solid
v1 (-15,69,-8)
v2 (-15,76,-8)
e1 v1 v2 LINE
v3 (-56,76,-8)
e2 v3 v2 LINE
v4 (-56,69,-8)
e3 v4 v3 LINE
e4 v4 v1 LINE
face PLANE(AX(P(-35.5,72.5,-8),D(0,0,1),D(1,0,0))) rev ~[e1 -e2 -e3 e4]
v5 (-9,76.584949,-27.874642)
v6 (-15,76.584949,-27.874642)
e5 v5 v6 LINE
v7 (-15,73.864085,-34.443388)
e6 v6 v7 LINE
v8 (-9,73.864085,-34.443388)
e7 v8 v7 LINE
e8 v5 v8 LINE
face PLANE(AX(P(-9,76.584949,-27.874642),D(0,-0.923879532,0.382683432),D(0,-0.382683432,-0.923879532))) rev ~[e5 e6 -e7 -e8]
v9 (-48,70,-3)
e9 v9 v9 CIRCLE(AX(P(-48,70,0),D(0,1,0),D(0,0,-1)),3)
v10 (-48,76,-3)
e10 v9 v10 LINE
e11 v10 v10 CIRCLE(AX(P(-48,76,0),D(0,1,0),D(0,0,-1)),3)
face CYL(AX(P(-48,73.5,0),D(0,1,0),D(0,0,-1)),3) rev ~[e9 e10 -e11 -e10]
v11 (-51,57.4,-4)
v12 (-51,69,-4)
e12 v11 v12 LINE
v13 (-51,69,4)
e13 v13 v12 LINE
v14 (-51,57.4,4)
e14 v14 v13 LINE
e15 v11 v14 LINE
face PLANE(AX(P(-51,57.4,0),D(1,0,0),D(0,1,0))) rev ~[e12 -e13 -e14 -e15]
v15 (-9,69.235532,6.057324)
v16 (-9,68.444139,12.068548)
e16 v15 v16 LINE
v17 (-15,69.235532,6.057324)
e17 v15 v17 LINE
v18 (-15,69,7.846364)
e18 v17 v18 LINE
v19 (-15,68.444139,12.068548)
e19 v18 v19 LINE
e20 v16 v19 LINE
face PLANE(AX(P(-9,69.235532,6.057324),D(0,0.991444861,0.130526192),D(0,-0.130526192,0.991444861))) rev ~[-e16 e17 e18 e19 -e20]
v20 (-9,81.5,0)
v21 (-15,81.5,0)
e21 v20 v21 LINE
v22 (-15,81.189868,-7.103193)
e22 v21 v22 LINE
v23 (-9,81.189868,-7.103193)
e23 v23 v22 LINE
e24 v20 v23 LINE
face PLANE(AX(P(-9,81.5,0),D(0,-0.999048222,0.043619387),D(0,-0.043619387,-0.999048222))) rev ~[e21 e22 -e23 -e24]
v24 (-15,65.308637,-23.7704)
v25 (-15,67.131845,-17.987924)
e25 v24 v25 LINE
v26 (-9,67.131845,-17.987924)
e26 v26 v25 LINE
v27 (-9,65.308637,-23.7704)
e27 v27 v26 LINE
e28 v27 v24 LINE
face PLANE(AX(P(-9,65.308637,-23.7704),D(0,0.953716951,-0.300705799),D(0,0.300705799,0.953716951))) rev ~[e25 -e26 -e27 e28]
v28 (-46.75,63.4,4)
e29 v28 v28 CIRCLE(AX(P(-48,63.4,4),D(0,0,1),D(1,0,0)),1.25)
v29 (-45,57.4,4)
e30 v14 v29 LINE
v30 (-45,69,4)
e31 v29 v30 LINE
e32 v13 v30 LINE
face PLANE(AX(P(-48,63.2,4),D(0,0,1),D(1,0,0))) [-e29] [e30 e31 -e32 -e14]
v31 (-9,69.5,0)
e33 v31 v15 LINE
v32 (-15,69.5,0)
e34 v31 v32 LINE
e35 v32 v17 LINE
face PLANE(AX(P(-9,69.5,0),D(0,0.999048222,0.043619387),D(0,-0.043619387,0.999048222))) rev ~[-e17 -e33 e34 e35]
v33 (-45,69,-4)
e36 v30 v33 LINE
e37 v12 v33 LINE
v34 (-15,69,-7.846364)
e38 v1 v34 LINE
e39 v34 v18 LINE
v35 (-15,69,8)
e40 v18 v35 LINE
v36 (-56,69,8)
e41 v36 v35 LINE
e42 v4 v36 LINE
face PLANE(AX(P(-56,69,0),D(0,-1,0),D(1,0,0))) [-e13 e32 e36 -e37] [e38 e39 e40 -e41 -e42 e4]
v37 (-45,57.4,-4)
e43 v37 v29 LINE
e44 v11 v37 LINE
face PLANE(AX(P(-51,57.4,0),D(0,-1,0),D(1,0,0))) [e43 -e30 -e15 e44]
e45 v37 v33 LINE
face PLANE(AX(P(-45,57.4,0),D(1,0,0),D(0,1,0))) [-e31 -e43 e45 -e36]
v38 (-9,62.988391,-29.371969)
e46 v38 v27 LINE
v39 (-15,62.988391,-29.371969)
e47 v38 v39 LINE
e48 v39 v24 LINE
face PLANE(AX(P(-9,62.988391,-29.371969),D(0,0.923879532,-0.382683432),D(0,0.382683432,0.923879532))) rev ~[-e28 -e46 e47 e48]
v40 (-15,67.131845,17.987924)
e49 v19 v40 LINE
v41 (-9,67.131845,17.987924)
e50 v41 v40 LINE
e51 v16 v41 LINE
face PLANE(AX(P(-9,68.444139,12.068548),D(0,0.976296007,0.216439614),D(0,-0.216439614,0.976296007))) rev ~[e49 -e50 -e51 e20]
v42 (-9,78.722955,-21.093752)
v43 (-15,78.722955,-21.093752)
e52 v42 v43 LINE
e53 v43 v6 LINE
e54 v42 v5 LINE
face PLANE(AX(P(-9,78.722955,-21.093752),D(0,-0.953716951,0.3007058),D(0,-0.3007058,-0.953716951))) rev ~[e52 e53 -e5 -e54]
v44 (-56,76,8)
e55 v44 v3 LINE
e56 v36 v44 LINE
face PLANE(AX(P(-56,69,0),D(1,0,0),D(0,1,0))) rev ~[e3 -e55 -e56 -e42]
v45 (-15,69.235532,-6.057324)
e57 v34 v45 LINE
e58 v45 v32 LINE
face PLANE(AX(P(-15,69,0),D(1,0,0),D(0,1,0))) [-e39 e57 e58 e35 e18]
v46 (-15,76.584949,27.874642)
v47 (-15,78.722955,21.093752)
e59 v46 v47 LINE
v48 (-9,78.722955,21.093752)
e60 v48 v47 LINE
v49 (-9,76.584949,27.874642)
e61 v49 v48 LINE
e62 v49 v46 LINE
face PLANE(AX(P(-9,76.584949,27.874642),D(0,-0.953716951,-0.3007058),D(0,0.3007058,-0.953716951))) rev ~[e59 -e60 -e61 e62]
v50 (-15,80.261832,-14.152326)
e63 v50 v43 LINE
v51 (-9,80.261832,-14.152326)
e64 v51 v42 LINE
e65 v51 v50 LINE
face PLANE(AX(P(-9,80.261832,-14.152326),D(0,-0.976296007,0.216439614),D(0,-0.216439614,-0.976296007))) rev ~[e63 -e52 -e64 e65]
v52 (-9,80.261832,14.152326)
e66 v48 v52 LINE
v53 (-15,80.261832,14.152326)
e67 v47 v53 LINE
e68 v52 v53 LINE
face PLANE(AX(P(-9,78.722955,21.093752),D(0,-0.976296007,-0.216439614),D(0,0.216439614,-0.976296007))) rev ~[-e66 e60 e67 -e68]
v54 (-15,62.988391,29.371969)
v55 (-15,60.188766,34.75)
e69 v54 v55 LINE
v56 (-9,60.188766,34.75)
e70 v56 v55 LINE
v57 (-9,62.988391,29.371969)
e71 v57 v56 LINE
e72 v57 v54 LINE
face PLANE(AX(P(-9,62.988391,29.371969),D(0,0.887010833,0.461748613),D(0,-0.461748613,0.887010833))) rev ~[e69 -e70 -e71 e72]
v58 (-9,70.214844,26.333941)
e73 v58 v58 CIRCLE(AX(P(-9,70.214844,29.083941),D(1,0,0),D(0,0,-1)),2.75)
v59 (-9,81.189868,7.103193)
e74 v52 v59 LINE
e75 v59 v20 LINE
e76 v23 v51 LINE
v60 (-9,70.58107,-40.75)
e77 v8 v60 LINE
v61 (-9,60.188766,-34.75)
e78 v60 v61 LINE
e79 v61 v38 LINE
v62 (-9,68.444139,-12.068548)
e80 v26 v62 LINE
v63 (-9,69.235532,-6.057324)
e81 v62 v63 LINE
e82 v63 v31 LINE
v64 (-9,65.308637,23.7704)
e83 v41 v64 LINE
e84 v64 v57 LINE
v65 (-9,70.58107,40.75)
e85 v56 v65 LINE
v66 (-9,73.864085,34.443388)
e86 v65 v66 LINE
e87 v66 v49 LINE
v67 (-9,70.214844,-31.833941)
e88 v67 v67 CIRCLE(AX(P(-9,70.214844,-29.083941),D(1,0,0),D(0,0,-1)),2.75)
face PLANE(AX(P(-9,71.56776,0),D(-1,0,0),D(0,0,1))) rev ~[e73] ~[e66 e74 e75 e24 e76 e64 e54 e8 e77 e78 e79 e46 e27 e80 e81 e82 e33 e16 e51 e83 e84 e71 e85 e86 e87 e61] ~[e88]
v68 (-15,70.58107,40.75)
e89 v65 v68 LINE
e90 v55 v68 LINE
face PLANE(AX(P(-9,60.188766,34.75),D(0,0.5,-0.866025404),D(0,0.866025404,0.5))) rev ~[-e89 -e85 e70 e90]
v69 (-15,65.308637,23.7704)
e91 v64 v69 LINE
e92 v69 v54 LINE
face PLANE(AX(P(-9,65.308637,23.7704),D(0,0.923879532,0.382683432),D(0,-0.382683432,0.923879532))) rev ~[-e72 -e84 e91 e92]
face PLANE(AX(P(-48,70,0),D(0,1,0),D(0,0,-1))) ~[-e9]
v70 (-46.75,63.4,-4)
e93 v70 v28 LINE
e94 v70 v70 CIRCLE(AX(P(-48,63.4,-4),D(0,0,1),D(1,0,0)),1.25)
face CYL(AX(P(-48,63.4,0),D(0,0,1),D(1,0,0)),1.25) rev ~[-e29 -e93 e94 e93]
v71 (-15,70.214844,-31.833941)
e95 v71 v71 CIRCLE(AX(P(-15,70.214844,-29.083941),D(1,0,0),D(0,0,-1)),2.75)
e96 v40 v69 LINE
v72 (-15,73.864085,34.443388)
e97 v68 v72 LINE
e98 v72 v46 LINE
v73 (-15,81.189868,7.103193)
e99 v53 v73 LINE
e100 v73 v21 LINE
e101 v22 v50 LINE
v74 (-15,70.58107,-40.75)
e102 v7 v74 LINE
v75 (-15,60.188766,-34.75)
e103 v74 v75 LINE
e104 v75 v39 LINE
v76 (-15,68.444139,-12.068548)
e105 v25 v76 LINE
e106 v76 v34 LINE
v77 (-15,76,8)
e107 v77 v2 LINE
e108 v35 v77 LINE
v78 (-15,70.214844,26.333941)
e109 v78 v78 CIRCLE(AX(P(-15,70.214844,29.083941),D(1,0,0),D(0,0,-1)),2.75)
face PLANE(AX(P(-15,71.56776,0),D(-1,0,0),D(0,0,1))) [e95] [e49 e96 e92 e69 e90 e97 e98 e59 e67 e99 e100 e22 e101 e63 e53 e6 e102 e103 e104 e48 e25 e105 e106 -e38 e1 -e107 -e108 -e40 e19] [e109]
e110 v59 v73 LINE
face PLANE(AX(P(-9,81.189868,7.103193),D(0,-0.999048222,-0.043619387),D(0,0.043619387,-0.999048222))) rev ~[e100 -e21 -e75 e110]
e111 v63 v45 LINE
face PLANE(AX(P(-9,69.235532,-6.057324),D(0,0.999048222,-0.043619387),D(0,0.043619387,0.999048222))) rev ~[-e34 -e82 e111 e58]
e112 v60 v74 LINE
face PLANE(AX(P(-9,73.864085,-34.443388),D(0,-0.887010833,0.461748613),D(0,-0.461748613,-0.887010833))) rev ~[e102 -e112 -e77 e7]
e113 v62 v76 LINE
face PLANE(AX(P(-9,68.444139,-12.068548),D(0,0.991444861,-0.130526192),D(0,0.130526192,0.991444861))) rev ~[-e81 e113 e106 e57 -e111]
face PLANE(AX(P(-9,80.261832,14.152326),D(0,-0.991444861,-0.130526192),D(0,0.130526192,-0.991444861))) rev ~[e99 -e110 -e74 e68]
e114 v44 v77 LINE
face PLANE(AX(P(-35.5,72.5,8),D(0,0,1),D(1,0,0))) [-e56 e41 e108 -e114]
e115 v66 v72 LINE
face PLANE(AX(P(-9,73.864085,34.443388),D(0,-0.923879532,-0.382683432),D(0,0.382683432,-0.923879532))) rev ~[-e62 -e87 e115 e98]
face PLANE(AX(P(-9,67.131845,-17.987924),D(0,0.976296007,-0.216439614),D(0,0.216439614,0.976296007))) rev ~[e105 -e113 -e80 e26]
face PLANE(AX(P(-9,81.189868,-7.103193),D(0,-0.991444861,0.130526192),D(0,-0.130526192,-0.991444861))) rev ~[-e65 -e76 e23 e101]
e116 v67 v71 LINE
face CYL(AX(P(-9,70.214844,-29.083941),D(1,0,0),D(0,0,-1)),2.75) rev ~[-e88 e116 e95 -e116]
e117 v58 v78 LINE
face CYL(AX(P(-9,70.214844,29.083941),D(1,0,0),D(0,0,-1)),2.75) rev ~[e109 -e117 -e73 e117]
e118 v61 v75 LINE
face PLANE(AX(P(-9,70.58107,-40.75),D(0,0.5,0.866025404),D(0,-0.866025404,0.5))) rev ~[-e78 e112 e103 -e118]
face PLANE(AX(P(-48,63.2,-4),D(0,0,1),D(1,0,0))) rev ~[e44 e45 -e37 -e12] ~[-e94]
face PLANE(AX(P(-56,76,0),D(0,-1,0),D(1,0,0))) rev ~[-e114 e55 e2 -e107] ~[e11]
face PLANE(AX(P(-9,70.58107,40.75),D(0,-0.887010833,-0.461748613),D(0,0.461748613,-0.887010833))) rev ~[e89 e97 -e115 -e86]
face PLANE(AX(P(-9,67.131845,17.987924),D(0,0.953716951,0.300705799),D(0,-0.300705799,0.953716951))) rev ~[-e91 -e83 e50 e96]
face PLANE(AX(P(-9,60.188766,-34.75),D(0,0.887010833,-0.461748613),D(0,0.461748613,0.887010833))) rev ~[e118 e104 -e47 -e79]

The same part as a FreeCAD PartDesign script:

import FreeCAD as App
import Part
import Sketcher
from FreeCAD import Vector
Q = App.Units.Quantity


def add_polygon(sketch, points):
    """Adds a closed chain of lines whose ends are joined by coincident constraints."""
    first, n = sketch.GeometryCount, len(points)
    for a, b in zip(points, points[1:] + points[:1]):
        sketch.addGeometry(Part.LineSegment(App.Vector(*a, 0), App.Vector(*b, 0)), False)
    for i in range(n):
        sketch.addConstraint(Sketcher.Constraint("Coincident", first + i, 2, first + (i + 1) % n, 1))

doc = App.newDocument("Part")
params = doc.addObject("Spreadsheet::Sheet", "Params")
for row, (alias, value) in enumerate([
    ("sketch1_length", "12 mm"),
    ("pad1_length", "6 mm"),
    ("sketch2_width", "41 mm"),
    ("sketch2_height", "7 mm"),
    ("pad2_length", "16 mm"),
    ("sketch3_width", "6 mm"),
    ("sketch3_height", "11.6 mm"),
    ("pad3_length", "8 mm"),
    ("sketch4_width", "3 mm"),
    ("sketch4_height", "7 mm"),
    ("groove_angle", "360 deg"),
    ("sketch5_diameter", "2.5 mm"),
    ("pocket1_length", "10 mm"),
    ("sketch6_diameter", "5.5 mm"),
    ("pocket2_length", "6 mm"),
    ("sketch7_diameter", "5.5 mm"),
    ("pocket3_length", "6 mm"),
], start=1):
    params.set(f"A{row}", alias)
    params.set(f"B{row}", "=" + value)
    params.setAlias(f"B{row}", alias)

body = doc.addObject("PartDesign::Body", "Body")

sketch1 = body.newObject("Sketcher::SketchObject", "Sketch")
sketch1.AttachmentSupport = (doc.getObject("YZ_Plane"), [""])
sketch1.MapMode = "FlatFace"
sketch1.AttachmentOffset = App.Placement(Vector(0, 0, -9), App.Rotation())
add_polygon(sketch1, [(74, 34), (71, 41), (60, 35), (63, 29), (65, 24), (67, 18), (68, 12), (69, 6), (70, 0), (69, -6), (68, -12), (67, -18), (65, -24), (63, -29), (60, -35), (71, -41), (74, -34), (77, -28), (79, -21), (80, -14), (81, -7), (82, 0), (81, 7), (80, 14), (79, 21), (77, 28)])
sketch1.addConstraint([
    Sketcher.Constraint("Symmetric", 6, 2, 8, 2, -1),
    Sketcher.Constraint("Symmetric", 5, 2, 9, 2, -1),
    Sketcher.Constraint("Symmetric", 4, 2, 10, 2, -1),
    Sketcher.Constraint("Symmetric", 3, 2, 11, 2, -1),
    Sketcher.Constraint("Symmetric", 2, 2, 12, 2, -1),
    Sketcher.Constraint("Symmetric", 1, 2, 13, 2, -1),
    Sketcher.Constraint("Symmetric", 0, 2, 14, 2, -1),
    Sketcher.Constraint("Symmetric", 19, 2, 21, 2, -1),
    Sketcher.Constraint("Symmetric", 18, 2, 22, 2, -1),
    Sketcher.Constraint("Symmetric", 17, 2, 23, 2, -1),
    Sketcher.Constraint("Symmetric", 16, 2, 24, 2, -1),
    Sketcher.Constraint("Symmetric", 15, 2, 25, 2, -1),
    Sketcher.Constraint("PointOnObject", 7, 2, -1),
    Sketcher.Constraint("PointOnObject", 20, 2, -1),
    Sketcher.Constraint("Parallel", 0, 2),
    Sketcher.Constraint("Parallel", 12, 16),
    Sketcher.Constraint("Parallel", 11, 17),
    Sketcher.Constraint("Parallel", 10, 18),
    Sketcher.Constraint("Parallel", 9, 19),
    Sketcher.Constraint("Parallel", 8, 20),
    Sketcher.Constraint("Equal", 2, 3),
    Sketcher.Constraint("Equal", 3, 4),
    Sketcher.Constraint("Equal", 4, 5),
    Sketcher.Constraint("Equal", 5, 6),
    Sketcher.Constraint("Equal", 6, 7),
    Sketcher.Constraint("Equal", 15, 16),
    Sketcher.Constraint("Equal", 16, 17),
    Sketcher.Constraint("Equal", 17, 18),
    Sketcher.Constraint("Equal", 18, 19),
    Sketcher.Constraint("Equal", 19, 20),
    Sketcher.Constraint("Angle", 1, Q("-150 deg")),
    Sketcher.Constraint("Distance", 1, Q("12 mm")),
    Sketcher.Constraint("Angle", 0, Q("117.5 deg")),
    Sketcher.Constraint("Angle", 3, Q("-67.5 deg")),
    Sketcher.Constraint("Angle", 4, Q("-72.5 deg")),
    Sketcher.Constraint("Angle", 5, Q("-77.5 deg")),
    Sketcher.Constraint("Angle", 6, Q("-82.5 deg")),
    Sketcher.Constraint("Angle", 7, Q("-87.5 deg")),
    Sketcher.Constraint("DistanceX", -1, 1, 7, 2, Q("69.5 mm")),
    Sketcher.Constraint("DistanceY", -1, 1, 0, 2, Q("40.75 mm")),
])
sketch1.setExpression("Constraints[57]", "Params.sketch1_length")
pad1 = body.newObject("PartDesign::Pad", "Pad")
pad1.Profile = sketch1
pad1.setExpression("Length", "Params.pad1_length")
pad1.Reversed = True

sketch2 = body.newObject("Sketcher::SketchObject", "Sketch001")
sketch2.AttachmentSupport = (doc.getObject("XY_Plane"), [""])
sketch2.MapMode = "FlatFace"
add_polygon(sketch2, [(-56, 76), (-56, 69), (-15, 69), (-15, 76)])
sketch2.addConstraint([
    Sketcher.Constraint("Vertical", 0),
    Sketcher.Constraint("Horizontal", 1),
    Sketcher.Constraint("Vertical", 2),
    Sketcher.Constraint("Horizontal", 3),
    Sketcher.Constraint("DistanceX", 1, 1, 1, 2, Q("41 mm")),
    Sketcher.Constraint("DistanceY", 0, 2, 0, 1, Q("7 mm")),
    Sketcher.Constraint("DistanceX", 0, 2, -1, 1, Q("56 mm")),
    Sketcher.Constraint("DistanceY", -1, 1, 0, 2, Q("69 mm")),
])
sketch2.setExpression("Constraints[8]", "Params.sketch2_width")
sketch2.setExpression("Constraints[9]", "Params.sketch2_height")
pad2 = body.newObject("PartDesign::Pad", "Pad001")
pad2.Profile = sketch2
pad2.setExpression("Length", "Params.pad2_length")
pad2.Midplane = True

sketch3 = body.newObject("Sketcher::SketchObject", "Sketch002")
sketch3.AttachmentSupport = (doc.getObject("XY_Plane"), [""])
sketch3.MapMode = "FlatFace"
add_polygon(sketch3, [(-51, 69), (-51, 57), (-45, 57), (-45, 69)])
sketch3.addConstraint([
    Sketcher.Constraint("Vertical", 0),
    Sketcher.Constraint("Horizontal", 1),
    Sketcher.Constraint("Vertical", 2),
    Sketcher.Constraint("Horizontal", 3),
    Sketcher.Constraint("DistanceX", 1, 1, 1, 2, Q("6 mm")),
    Sketcher.Constraint("DistanceY", 0, 2, 0, 1, Q("11.6 mm")),
    Sketcher.Constraint("DistanceX", 0, 2, -1, 1, Q("51 mm")),
    Sketcher.Constraint("DistanceY", -1, 1, 2, 2, Q("69 mm")),
])
sketch3.setExpression("Constraints[8]", "Params.sketch3_width")
sketch3.setExpression("Constraints[9]", "Params.sketch3_height")
pad3 = body.newObject("PartDesign::Pad", "Pad002")
pad3.Profile = sketch3
pad3.setExpression("Length", "Params.pad3_length")
pad3.Midplane = True

sketch4 = body.newObject("Sketcher::SketchObject", "Sketch003")
sketch4.AttachmentSupport = (doc.getObject("XY_Plane"), [""])
sketch4.MapMode = "FlatFace"
add_polygon(sketch4, [(-48, 77), (-48, 70), (-45, 70), (-45, 77)])
sketch4.addGeometry(Part.LineSegment(Vector(-48, 70, 0), Vector(-48, 77, 0)), True)
sketch4.addConstraint([
    Sketcher.Constraint("Vertical", 0),
    Sketcher.Constraint("Horizontal", 1),
    Sketcher.Constraint("Vertical", 2),
    Sketcher.Constraint("Horizontal", 3),
    Sketcher.Constraint("Vertical", 4),
    Sketcher.Constraint("Coincident", 4, 1, 0, 2),
    Sketcher.Constraint("Horizontal", 2, 2, 4, 2),
    Sketcher.Constraint("DistanceX", 1, 1, 1, 2, Q("3 mm")),
    Sketcher.Constraint("DistanceY", 0, 2, 0, 1, Q("7 mm")),
    Sketcher.Constraint("DistanceX", 0, 2, -1, 1, Q("48 mm")),
    Sketcher.Constraint("DistanceY", -1, 1, 0, 2, Q("70 mm")),
])
sketch4.setExpression("Constraints[11]", "Params.sketch4_width")
sketch4.setExpression("Constraints[12]", "Params.sketch4_height")
groove = body.newObject("PartDesign::Groove", "Groove")
groove.Profile = sketch4
groove.ReferenceAxis = (sketch4, ["Axis0"])
groove.setExpression("Angle", "Params.groove_angle")

sketch5 = body.newObject("Sketcher::SketchObject", "Sketch004")
sketch5.AttachmentSupport = (doc.getObject("XY_Plane"), [""])
sketch5.MapMode = "FlatFace"
sketch5.addGeometry(Part.Circle(Vector(-48, 63.4, 0), Vector(0, 0, 1), 1.2), False)
sketch5.addConstraint([
    Sketcher.Constraint("Diameter", 0, Q("2.5 mm")),
    Sketcher.Constraint("DistanceX", 0, 3, -1, 1, Q("48 mm")),
    Sketcher.Constraint("DistanceY", -1, 1, 0, 3, Q("63.4 mm")),
])
sketch5.setExpression("Constraints[0]", "Params.sketch5_diameter")
pocket1 = body.newObject("PartDesign::Pocket", "Pocket")
pocket1.Profile = sketch5
pocket1.setExpression("Length", "Params.pocket1_length")
pocket1.Midplane = True

sketch6 = body.newObject("Sketcher::SketchObject", "Sketch005")
sketch6.AttachmentSupport = (doc.getObject("YZ_Plane"), [""])
sketch6.MapMode = "FlatFace"
sketch6.AttachmentOffset = App.Placement(Vector(0, 0, -9), App.Rotation())
sketch6.addGeometry(Part.Circle(Vector(70.2, -29.1, 0), Vector(0, 0, 1), 2.8), False)
sketch6.addConstraint([
    Sketcher.Constraint("Diameter", 0, Q("5.5 mm")),
    Sketcher.Constraint("DistanceY", 0, 3, -1, 1, Q("29.083941 mm")),
    Sketcher.Constraint("DistanceX", -1, 1, 0, 3, Q("70.214844 mm")),
])
sketch6.setExpression("Constraints[0]", "Params.sketch6_diameter")
pocket2 = body.newObject("PartDesign::Pocket", "Pocket001")
pocket2.Profile = sketch6
pocket2.setExpression("Length", "Params.pocket2_length")

sketch7 = body.newObject("Sketcher::SketchObject", "Sketch006")
sketch7.AttachmentSupport = (doc.getObject("YZ_Plane"), [""])
sketch7.MapMode = "FlatFace"
sketch7.AttachmentOffset = App.Placement(Vector(0, 0, -9), App.Rotation())
sketch7.addGeometry(Part.Circle(Vector(70.2, 29.1, 0), Vector(0, 0, 1), 2.8), False)
sketch7.addConstraint([
    Sketcher.Constraint("Diameter", 0, Q("5.5 mm")),
    Sketcher.Constraint("DistanceY", -1, 1, 0, 3, Q("29.083941 mm")),
    Sketcher.Constraint("DistanceX", -1, 1, 0, 3, Q("70.214844 mm")),
])
sketch7.setExpression("Constraints[0]", "Params.sketch7_diameter")
pocket3 = body.newObject("PartDesign::Pocket", "Pocket002")
pocket3.Profile = sketch7
pocket3.setExpression("Length", "Params.pocket3_length")

doc.recompute()
